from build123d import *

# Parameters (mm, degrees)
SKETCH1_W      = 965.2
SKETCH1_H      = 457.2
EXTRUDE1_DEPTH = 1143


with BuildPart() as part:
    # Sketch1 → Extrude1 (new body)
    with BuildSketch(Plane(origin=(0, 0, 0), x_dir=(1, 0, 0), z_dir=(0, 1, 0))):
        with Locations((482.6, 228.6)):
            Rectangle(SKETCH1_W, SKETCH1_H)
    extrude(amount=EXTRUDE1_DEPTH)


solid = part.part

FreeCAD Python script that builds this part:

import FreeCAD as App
import Part
import Sketcher
from FreeCAD import Vector
Q = App.Units.Quantity

doc = App.newDocument("Part")
body = doc.addObject("PartDesign::Body", "Body")

# Sketch on XZ plane
sketch1 = body.newObject("Sketcher::SketchObject", "Sketch")
sketch1.AttachmentSupport = (doc.getObject("XZ_Plane"), [""])
sketch1.MapMode = "FlatFace"
sketch1.addGeometry([
    Part.LineSegment(Vector(0, -457, 0), Vector(0, 0, 0)),
    Part.LineSegment(Vector(0, 0, 0), Vector(965, 0, 0)),
    Part.LineSegment(Vector(965, 0, 0), Vector(965, -457, 0)),
    Part.LineSegment(Vector(965, -457, 0), Vector(0, -457, 0)),
], False)
sketch1.addConstraint([
    Sketcher.Constraint("Coincident", 0, 2, 1, 1),
    Sketcher.Constraint("Coincident", 1, 2, 2, 1),
    Sketcher.Constraint("Coincident", 2, 2, 3, 1),
    Sketcher.Constraint("Coincident", 3, 2, 0, 1),
    Sketcher.Constraint("Vertical", 0),
    Sketcher.Constraint("Horizontal", 1),
    Sketcher.Constraint("Vertical", 2),
    Sketcher.Constraint("Horizontal", 3),
    Sketcher.Constraint("Coincident", 0, 2, -1, 1),
    Sketcher.Constraint("DistanceX", 1, 1, 1, 2, Q("38 in")),
    Sketcher.Constraint("DistanceY", 0, 1, 0, 2, Q("18 in")),
])
pad1 = body.newObject("PartDesign::Pad", "Pad")
pad1.Profile = sketch1
pad1.Length = Q("45 in")
pad1.Reversed = True

doc.recompute()
